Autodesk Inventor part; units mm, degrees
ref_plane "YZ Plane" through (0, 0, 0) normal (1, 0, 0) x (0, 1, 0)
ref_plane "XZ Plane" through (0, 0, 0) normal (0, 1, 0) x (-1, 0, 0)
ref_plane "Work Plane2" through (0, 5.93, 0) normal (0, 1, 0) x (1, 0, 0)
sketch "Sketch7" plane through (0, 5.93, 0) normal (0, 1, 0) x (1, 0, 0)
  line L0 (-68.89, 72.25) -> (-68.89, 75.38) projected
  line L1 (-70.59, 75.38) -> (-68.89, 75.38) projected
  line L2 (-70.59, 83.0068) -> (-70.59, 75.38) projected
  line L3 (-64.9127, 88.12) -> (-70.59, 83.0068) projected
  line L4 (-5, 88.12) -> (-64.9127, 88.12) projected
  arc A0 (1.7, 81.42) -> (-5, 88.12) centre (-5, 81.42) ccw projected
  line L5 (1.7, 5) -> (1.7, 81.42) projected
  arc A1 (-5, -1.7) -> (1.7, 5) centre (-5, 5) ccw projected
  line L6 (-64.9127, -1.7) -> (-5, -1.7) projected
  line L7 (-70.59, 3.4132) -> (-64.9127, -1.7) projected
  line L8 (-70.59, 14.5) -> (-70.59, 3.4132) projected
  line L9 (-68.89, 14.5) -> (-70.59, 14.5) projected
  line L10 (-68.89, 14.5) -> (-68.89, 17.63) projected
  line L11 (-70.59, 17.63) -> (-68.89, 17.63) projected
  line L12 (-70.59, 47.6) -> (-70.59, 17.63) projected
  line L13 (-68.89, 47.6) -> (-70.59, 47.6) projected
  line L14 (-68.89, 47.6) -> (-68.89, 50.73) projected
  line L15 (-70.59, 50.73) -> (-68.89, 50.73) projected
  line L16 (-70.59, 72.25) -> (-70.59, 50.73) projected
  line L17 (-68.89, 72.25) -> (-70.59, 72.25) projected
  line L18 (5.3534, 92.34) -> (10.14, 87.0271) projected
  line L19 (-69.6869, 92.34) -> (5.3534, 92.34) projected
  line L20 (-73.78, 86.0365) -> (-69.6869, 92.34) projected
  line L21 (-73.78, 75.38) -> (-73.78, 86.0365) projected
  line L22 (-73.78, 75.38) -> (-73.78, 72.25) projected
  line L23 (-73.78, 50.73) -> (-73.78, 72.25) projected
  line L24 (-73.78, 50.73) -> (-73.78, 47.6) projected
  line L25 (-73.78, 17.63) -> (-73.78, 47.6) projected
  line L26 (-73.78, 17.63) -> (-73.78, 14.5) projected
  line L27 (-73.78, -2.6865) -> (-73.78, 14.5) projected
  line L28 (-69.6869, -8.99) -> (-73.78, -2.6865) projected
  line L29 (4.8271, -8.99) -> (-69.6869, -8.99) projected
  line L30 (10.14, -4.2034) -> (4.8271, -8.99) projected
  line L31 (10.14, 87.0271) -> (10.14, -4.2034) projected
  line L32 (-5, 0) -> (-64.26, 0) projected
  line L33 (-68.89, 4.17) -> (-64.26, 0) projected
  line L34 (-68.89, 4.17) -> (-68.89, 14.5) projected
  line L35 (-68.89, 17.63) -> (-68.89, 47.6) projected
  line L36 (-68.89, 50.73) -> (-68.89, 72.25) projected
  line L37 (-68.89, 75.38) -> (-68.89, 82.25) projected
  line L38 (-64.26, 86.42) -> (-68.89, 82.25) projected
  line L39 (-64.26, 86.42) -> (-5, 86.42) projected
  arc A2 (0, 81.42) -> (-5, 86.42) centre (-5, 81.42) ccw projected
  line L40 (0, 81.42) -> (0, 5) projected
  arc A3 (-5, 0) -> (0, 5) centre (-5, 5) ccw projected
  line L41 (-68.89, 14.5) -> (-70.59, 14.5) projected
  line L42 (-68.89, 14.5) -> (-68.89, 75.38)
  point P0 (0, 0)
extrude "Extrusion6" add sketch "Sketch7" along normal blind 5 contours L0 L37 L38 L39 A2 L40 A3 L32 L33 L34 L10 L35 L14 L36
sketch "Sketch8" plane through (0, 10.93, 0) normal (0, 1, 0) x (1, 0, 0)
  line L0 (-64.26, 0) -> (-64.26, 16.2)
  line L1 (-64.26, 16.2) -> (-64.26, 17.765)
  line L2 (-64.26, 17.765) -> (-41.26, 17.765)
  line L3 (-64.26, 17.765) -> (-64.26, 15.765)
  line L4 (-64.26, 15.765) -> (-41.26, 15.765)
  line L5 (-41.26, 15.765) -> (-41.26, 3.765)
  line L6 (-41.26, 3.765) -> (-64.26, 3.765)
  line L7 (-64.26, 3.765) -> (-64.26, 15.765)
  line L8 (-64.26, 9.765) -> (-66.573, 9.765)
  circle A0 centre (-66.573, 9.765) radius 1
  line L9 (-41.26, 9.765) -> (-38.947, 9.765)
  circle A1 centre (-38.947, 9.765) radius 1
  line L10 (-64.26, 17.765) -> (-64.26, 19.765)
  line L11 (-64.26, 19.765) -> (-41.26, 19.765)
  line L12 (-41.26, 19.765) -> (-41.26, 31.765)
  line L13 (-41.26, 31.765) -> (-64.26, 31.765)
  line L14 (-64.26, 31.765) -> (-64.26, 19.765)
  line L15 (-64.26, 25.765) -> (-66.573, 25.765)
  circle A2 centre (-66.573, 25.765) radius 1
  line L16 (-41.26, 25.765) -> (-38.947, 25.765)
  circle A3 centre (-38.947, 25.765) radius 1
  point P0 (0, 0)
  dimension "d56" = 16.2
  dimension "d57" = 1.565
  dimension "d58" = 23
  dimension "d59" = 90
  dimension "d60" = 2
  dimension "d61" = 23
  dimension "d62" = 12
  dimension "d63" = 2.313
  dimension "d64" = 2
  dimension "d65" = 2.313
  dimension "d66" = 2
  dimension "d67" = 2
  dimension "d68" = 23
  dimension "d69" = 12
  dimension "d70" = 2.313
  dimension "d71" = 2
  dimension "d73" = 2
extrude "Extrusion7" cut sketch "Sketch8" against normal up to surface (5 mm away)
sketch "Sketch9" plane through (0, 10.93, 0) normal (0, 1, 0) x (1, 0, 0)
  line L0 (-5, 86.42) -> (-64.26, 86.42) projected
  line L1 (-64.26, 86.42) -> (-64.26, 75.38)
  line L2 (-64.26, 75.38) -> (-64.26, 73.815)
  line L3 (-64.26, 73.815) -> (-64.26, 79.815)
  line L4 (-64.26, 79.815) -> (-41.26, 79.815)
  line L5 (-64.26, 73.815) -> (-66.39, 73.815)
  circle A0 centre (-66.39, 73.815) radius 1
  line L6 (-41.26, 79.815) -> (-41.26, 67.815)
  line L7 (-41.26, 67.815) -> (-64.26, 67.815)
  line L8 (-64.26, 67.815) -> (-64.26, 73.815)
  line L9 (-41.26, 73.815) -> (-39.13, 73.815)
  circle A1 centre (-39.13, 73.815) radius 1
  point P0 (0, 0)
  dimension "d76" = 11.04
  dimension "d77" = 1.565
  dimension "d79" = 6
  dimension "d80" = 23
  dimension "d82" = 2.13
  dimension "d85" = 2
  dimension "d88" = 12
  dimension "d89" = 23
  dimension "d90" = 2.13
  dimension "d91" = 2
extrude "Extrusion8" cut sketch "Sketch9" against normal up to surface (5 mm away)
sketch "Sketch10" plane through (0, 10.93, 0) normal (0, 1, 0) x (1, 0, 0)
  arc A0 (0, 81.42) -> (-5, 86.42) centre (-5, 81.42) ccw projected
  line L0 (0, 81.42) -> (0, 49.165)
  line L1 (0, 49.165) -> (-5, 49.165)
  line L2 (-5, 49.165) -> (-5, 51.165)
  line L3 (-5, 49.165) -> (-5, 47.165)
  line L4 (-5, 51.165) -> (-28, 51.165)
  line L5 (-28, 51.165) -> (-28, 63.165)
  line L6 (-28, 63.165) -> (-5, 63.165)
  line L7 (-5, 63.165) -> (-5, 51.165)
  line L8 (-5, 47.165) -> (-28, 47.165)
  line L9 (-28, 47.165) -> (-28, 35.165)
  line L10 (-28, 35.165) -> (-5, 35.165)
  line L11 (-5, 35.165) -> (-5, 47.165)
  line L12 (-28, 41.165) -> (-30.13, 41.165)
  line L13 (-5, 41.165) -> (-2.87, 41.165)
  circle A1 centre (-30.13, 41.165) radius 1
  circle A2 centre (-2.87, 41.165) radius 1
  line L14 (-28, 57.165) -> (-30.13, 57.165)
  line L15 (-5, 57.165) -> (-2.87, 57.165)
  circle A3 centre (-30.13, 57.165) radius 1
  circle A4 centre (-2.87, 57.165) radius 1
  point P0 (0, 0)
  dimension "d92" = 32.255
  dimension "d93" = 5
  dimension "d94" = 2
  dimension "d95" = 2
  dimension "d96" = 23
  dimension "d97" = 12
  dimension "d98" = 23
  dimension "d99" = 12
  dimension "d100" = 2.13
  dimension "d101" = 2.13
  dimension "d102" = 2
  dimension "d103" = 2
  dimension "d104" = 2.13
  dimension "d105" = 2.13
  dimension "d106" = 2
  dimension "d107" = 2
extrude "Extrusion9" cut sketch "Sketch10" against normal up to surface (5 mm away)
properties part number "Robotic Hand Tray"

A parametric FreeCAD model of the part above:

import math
import FreeCAD as App
import Part
import Sketcher
from FreeCAD import Vector


def add_polygon(sketch, points):
    """Adds a closed chain of lines whose ends are joined by coincident constraints."""
    first, n = sketch.GeometryCount, len(points)
    for a, b in zip(points, points[1:] + points[:1]):
        sketch.addGeometry(Part.LineSegment(App.Vector(*a, 0), App.Vector(*b, 0)), False)
    for i in range(n):
        sketch.addConstraint(Sketcher.Constraint("Coincident", first + i, 2, first + (i + 1) % n, 1))

doc = App.newDocument("Part")
body = doc.addObject("PartDesign::Body", "Body")

# Sketch on XZ plane
sketch1 = body.newObject("Sketcher::SketchObject", "Sketch")
sketch1.AttachmentSupport = (doc.getObject("XZ_Plane"), [""])
sketch1.MapMode = "FlatFace"
sketch1.AttachmentOffset = App.Placement(Vector(0, 0, -5.93), App.Rotation())
sketch1.addGeometry([
    Part.LineSegment(Vector(-69, -82, 0), Vector(-69, -4, 0)),  # 0
    Part.LineSegment(Vector(-69, -4, 0), Vector(-64, 0, 0)),  # 1
    Part.LineSegment(Vector(-64, 0, 0), Vector(-5, 0, 0)),  # 2
    Part.ArcOfCircle(Part.Circle(Vector(-5, -5, 0), Vector(0, 0, 1), 5), math.radians(0), math.radians(90)),  # 3
    Part.LineSegment(Vector(0, -5, 0), Vector(0, -81, 0)),  # 4
    Part.ArcOfCircle(Part.Circle(Vector(-5, -81, 0), Vector(0, 0, 1), 5), math.radians(-90), math.radians(0)),  # 5
    Part.LineSegment(Vector(-5, -86, 0), Vector(-64, -86, 0)),  # 6
    Part.LineSegment(Vector(-64, -86, 0), Vector(-69, -82, 0)),  # 7
], False)
sketch1.addConstraint([
    Sketcher.Constraint("Coincident", 0, 2, 1, 1),
    Sketcher.Constraint("Coincident", 1, 2, 2, 1),
    Sketcher.Constraint("Tangent", 2, 2, 3, 2),
    Sketcher.Constraint("Tangent", 3, 1, 4, 1),
    Sketcher.Constraint("Tangent", 4, 2, 5, 2),
    Sketcher.Constraint("Tangent", 5, 1, 6, 1),
    Sketcher.Constraint("Coincident", 6, 2, 7, 1),
    Sketcher.Constraint("Coincident", 7, 2, 0, 1),
    Sketcher.Constraint("Vertical", 0),
    Sketcher.Constraint("Horizontal", 2),
    Sketcher.Constraint("Vertical", 4),
    Sketcher.Constraint("Horizontal", 6),
    Sketcher.Constraint("Equal", 3, 5),
    Sketcher.Constraint("PointOnObject", 1, 2, -1),
    Sketcher.Constraint("PointOnObject", 3, 1, -2),
    Sketcher.Constraint("Vertical", 1, 2, 6, 2),
    Sketcher.Constraint("Equal", 1, 7),
    Sketcher.Constraint("Radius", 3, 5.0),
    Sketcher.Constraint("DistanceX", 2, 1, 2, 2, 59.26),
    Sketcher.Constraint("DistanceY", 0, 1, 0, 2, 78.08),
    Sketcher.Constraint("DistanceY", 4, 2, 4, 1, 76.42),
    Sketcher.Constraint("DistanceX", 0, 2, -1, 1, 68.89),
])
pad1 = body.newObject("PartDesign::Pad", "Pad")
pad1.Profile = sketch1
pad1.Length = 5
pad1.Reversed = True

# Sketch on XZ plane
sketch2 = body.newObject("Sketcher::SketchObject", "Sketch001")
sketch2.AttachmentSupport = (doc.getObject("XZ_Plane"), [""])
sketch2.MapMode = "FlatFace"
sketch2.AttachmentOffset = App.Placement(Vector(0, 0, -10.93), App.Rotation())
sketch2.addGeometry(Part.Circle(Vector(-66.6, -9.8, 0), Vector(0, 0, 1), 1), False)  # 0
sketch2.addGeometry(Part.Circle(Vector(-66.6, -25.8, 0), Vector(0, 0, 1), 1), False)  # 1
sketch2.addGeometry(Part.Circle(Vector(-38.9, -25.8, 0), Vector(0, 0, 1), 1), False)  # 2
add_polygon(sketch2, [(-64.3, -31.8), (-64.3, -19.8), (-41.3, -19.8), (-41.3, -31.8)])  # lines 3-6
sketch2.addGeometry(Part.Circle(Vector(-38.9, -9.8, 0), Vector(0, 0, 1), 1), False)  # 7
add_polygon(sketch2, [(-64.3, -15.8), (-64.3, -3.8), (-41.3, -3.8), (-41.3, -15.8)])  # lines 8-11
sketch2.addConstraint([
    Sketcher.Constraint("Vertical", 3),
    Sketcher.Constraint("Horizontal", 4),
    Sketcher.Constraint("Vertical", 5),
    Sketcher.Constraint("Horizontal", 6),
    Sketcher.Constraint("Vertical", 8),
    Sketcher.Constraint("Horizontal", 9),
    Sketcher.Constraint("Vertical", 10),
    Sketcher.Constraint("Horizontal", 11),
    Sketcher.Constraint("Equal", 0, 1),
    Sketcher.Constraint("Equal", 1, 2),
    Sketcher.Constraint("Equal", 2, 7),
    Sketcher.Constraint("Horizontal", 1, 3, 2, 3),
    Sketcher.Constraint("Horizontal", 0, 3, 7, 3),
    Sketcher.Constraint("Vertical", 0, 3, 1, 3),
    Sketcher.Constraint("Vertical", 2, 3, 7, 3),
    Sketcher.Constraint("Vertical", 6, 2, 8, 2),
    Sketcher.Constraint("Vertical", 5, 2, 9, 2),
    Sketcher.Constraint("Equal", 5, 8),
    Sketcher.Constraint("Diameter", 0, 2.0),
    Sketcher.Constraint("DistanceX", 4, 1, 4, 2, 23.0),
    Sketcher.Constraint("DistanceY", 3, 1, 3, 2, 12.0),
    Sketcher.Constraint("DistanceY", 1, 3, 0, 3, 16.0),
    Sketcher.Constraint("DistanceX", 1, 3, 3, 2, 2.313),
    Sketcher.Constraint("DistanceY", 1, 3, 3, 2, 6.0),
    Sketcher.Constraint("DistanceX", 4, 2, 2, 3, 2.313),
    Sketcher.Constraint("DistanceY", 0, 3, 8, 2, 6.0),
    Sketcher.Constraint("DistanceX", 3, 2, -1, 1, 64.26),
    Sketcher.Constraint("DistanceY", 0, 3, -1, 1, 9.765),
])
pocket1 = body.newObject("PartDesign::Pocket", "Pocket")
pocket1.Profile = sketch2
pocket1.Length = 5
pocket1.Reversed = True

# Sketch on XZ plane
sketch3 = body.newObject("Sketcher::SketchObject", "Sketch002")
sketch3.AttachmentSupport = (doc.getObject("XZ_Plane"), [""])
sketch3.MapMode = "FlatFace"
sketch3.AttachmentOffset = App.Placement(Vector(0, 0, -10.93), App.Rotation())
add_polygon(sketch3, [(-41.3, -79.8), (-64.3, -79.8), (-64.3, -67.8), (-41.3, -67.8)])  # lines 0-3
sketch3.addGeometry(Part.Circle(Vector(-39.1, -73.8, 0), Vector(0, 0, 1), 1), False)  # 4
sketch3.addGeometry(Part.Circle(Vector(-66.4, -73.8, 0), Vector(0, 0, 1), 1), False)  # 5
sketch3.addConstraint([
    Sketcher.Constraint("Horizontal", 0),
    Sketcher.Constraint("Vertical", 1),
    Sketcher.Constraint("Horizontal", 2),
    Sketcher.Constraint("Vertical", 3),
    Sketcher.Constraint("Equal", 4, 5),
    Sketcher.Constraint("Horizontal", 4, 3, 5, 3),
    Sketcher.Constraint("Diameter", 4, 2.0),
    Sketcher.Constraint("DistanceX", 0, 2, 0, 1, 23.0),
    Sketcher.Constraint("DistanceY", 1, 1, 1, 2, 12.0),
    Sketcher.Constraint("DistanceY", 0, 2, 5, 3, 6.0),
    Sketcher.Constraint("DistanceX", 5, 3, 0, 2, 2.13),
    Sketcher.Constraint("DistanceX", 2, 2, 4, 3, 2.13),
    Sketcher.Constraint("DistanceX", 4, 3, -1, 1, 39.13),
    Sketcher.Constraint("DistanceY", 4, 3, -1, 1, 73.815),
])
pocket2 = body.newObject("PartDesign::Pocket", "Pocket001")
pocket2.Profile = sketch3
pocket2.Length = 5
pocket2.Reversed = True

# Sketch on XZ plane
sketch4 = body.newObject("Sketcher::SketchObject", "Sketch003")
sketch4.AttachmentSupport = (doc.getObject("XZ_Plane"), [""])
sketch4.MapMode = "FlatFace"
sketch4.AttachmentOffset = App.Placement(Vector(0, 0, -10.93), App.Rotation())
sketch4.addGeometry(Part.Circle(Vector(-30.1, -57.2, 0), Vector(0, 0, 1), 1), False)  # 0
sketch4.addGeometry(Part.Circle(Vector(-2.9, -57.2, 0), Vector(0, 0, 1), 1), False)  # 1
add_polygon(sketch4, [(-28, -51.2), (-5, -51.2), (-5, -63.2), (-28, -63.2)])  # lines 2-5
sketch4.addGeometry(Part.Circle(Vector(-2.9, -41.2, 0), Vector(0, 0, 1), 1), False)  # 6
sketch4.addGeometry(Part.Circle(Vector(-30.1, -41.2, 0), Vector(0, 0, 1), 1), False)  # 7
add_polygon(sketch4, [(-5, -35.2), (-5, -47.2), (-28, -47.2), (-28, -35.2)])  # lines 8-11
sketch4.addConstraint([
    Sketcher.Constraint("Horizontal", 2),
    Sketcher.Constraint("Vertical", 3),
    Sketcher.Constraint("Horizontal", 4),
    Sketcher.Constraint("Vertical", 5),
    Sketcher.Constraint("Vertical", 8),
    Sketcher.Constraint("Horizontal", 9),
    Sketcher.Constraint("Vertical", 10),
    Sketcher.Constraint("Horizontal", 11),
    Sketcher.Constraint("Equal", 0, 1),
    Sketcher.Constraint("Equal", 1, 6),
    Sketcher.Constraint("Equal", 6, 7),
    Sketcher.Constraint("Horizontal", 0, 3, 1, 3),
    Sketcher.Constraint("Horizontal", 6, 3, 7, 3),
    Sketcher.Constraint("Vertical", 1, 3, 6, 3),
    Sketcher.Constraint("Vertical", 0, 3, 7, 3),
    Sketcher.Constraint("Vertical", 3, 2, 8, 2),
    Sketcher.Constraint("Vertical", 5, 2, 9, 2),
    Sketcher.Constraint("Equal", 5, 8),
    Sketcher.Constraint("Diameter", 0, 2.0),
    Sketcher.Constraint("DistanceX", 2, 1, 2, 2, 23.0),
    Sketcher.Constraint("DistanceY", 3, 2, 3, 1, 12.0),
    Sketcher.Constraint("DistanceX", 2, 2, -1, 1, 5.0),
    Sketcher.Constraint("DistanceX", 2, 2, 1, 3, 2.13),
    Sketcher.Constraint("DistanceX", 0, 3, 4, 2, 2.13),
    Sketcher.Constraint("DistanceY", 1, 3, 6, 3, 16.0),
    Sketcher.Constraint("DistanceY", 1, 3, 2, 2, 6.0),
    Sketcher.Constraint("DistanceY", 2, 2, 8, 2, 4.0),
    Sketcher.Constraint("DistanceY", 0, 3, -1, 1, 57.165),
])
pocket3 = body.newObject("PartDesign::Pocket", "Pocket002")
pocket3.Profile = sketch4
pocket3.Length = 5
pocket3.Reversed = True

doc.recompute()
